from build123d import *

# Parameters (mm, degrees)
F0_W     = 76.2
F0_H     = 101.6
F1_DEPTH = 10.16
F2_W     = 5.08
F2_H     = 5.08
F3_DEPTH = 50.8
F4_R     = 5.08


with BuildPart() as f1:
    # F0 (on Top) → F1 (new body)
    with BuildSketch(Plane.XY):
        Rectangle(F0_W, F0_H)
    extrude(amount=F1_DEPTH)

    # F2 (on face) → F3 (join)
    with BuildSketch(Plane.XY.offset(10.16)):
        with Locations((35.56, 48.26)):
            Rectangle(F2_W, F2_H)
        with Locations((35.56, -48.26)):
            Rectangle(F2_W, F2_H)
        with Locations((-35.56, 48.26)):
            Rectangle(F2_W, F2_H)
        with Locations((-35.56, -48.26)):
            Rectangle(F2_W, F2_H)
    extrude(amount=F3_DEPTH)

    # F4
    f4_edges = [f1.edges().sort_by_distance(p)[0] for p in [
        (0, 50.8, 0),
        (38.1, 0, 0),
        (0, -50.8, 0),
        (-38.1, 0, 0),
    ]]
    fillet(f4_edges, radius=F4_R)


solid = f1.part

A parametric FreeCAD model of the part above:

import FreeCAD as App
import Part
import Sketcher
Q = App.Units.Quantity


def edges_at(feature, points):
    """Names of the edges that pass closest to the given points."""
    edges = feature.Shape.Edges
    near = lambda p: min(range(len(edges)), key=lambda i: edges[i].distToShape(Part.Vertex(*p))[0])
    return sorted({f"Edge{near(p) + 1}" for p in points})


def add_polygon(sketch, points):
    """Adds a closed chain of lines whose ends are joined by coincident constraints."""
    first, n = sketch.GeometryCount, len(points)
    for a, b in zip(points, points[1:] + points[:1]):
        sketch.addGeometry(Part.LineSegment(App.Vector(*a, 0), App.Vector(*b, 0)), False)
    for i in range(n):
        sketch.addConstraint(Sketcher.Constraint("Coincident", first + i, 2, first + (i + 1) % n, 1))

doc = App.newDocument("Part")
body = doc.addObject("PartDesign::Body", "Body")

# Sketch on XY plane
sketch1 = body.newObject("Sketcher::SketchObject", "Sketch")
sketch1.AttachmentSupport = (doc.getObject("XY_Plane"), [""])
sketch1.MapMode = "FlatFace"
add_polygon(sketch1, [(-38, 51), (-38, -51), (38, -51), (38, 51)])  # lines 0-3
sketch1.addConstraint([
    Sketcher.Constraint("Vertical", 0),
    Sketcher.Constraint("Horizontal", 1),
    Sketcher.Constraint("Vertical", 2),
    Sketcher.Constraint("Horizontal", 3),
    Sketcher.Constraint("Symmetric", 0, 2, 2, 2, -1, 1),
    Sketcher.Constraint("DistanceX", 1, 1, 1, 2, Q("3 in")),
    Sketcher.Constraint("DistanceY", 0, 2, 0, 1, Q("4 in")),
])
pad1 = body.newObject("PartDesign::Pad", "Pad")
pad1.Profile = sketch1
pad1.Length = Q("0.4 in")

# Sketch on XY plane
sketch2 = body.newObject("Sketcher::SketchObject", "Sketch001")
sketch2.AttachmentSupport = (doc.getObject("XY_Plane"), [""])
sketch2.MapMode = "FlatFace"
sketch2.AttachmentOffset = App.Placement(App.Vector(0, 0, 0.4 * 25.4), App.Rotation())
add_polygon(sketch2, [(33, 51), (33, 46), (38, 46), (38, 51)])  # lines 0-3
add_polygon(sketch2, [(33, -46), (33, -51), (38, -51), (38, -46)])  # lines 4-7
add_polygon(sketch2, [(-38, 51), (-38, 46), (-33, 46), (-33, 51)])  # lines 8-11
add_polygon(sketch2, [(-38, -46), (-38, -51), (-33, -51), (-33, -46)])  # lines 12-15
sketch2.addConstraint([
    Sketcher.Constraint("Vertical", 0),
    Sketcher.Constraint("Horizontal", 1),
    Sketcher.Constraint("Vertical", 2),
    Sketcher.Constraint("Horizontal", 3),
    Sketcher.Constraint("Vertical", 4),
    Sketcher.Constraint("Horizontal", 5),
    Sketcher.Constraint("Vertical", 6),
    Sketcher.Constraint("Horizontal", 7),
    Sketcher.Constraint("Vertical", 8),
    Sketcher.Constraint("Horizontal", 9),
    Sketcher.Constraint("Vertical", 10),
    Sketcher.Constraint("Horizontal", 11),
    Sketcher.Constraint("Vertical", 12),
    Sketcher.Constraint("Horizontal", 13),
    Sketcher.Constraint("Vertical", 14),
    Sketcher.Constraint("Horizontal", 15),
    Sketcher.Constraint("Symmetric", 6, 2, 8, 2, -1, 1),
    Sketcher.Constraint("Symmetric", 4, 2, 10, 2, -1, 1),
    Sketcher.Constraint("Symmetric", 2, 2, 12, 2, -1, 1),
    Sketcher.Constraint("Symmetric", 0, 2, 14, 2, -1, 1),
    Sketcher.Constraint("Symmetric", 1, 2, 8, 2, -2),
    Sketcher.Constraint("Symmetric", 3, 2, 10, 2, -2),
    Sketcher.Constraint("Equal", 15, 0),
    Sketcher.Constraint("DistanceX", 1, 1, 1, 2, Q("0.2 in")),
    Sketcher.Constraint("DistanceY", -1, 1, 2, 2, Q("2 in")),
    Sketcher.Constraint("DistanceX", 8, 2, 1, 2, Q("3 in")),
])
pad2 = body.newObject("PartDesign::Pad", "Pad001")
pad2.Profile = sketch2
pad2.Length = Q("2 in")
doc.recompute()

fillet = body.newObject("PartDesign::Fillet", "Fillet")
fillet.Base = (pad2, edges_at(pad2, [
    (0, 50.8, 0),
    (38.1, 0, 0),
    (0, -50.8, 0),
    (-38.1, 0, 0),
]))
fillet.Radius = Q("0.2 in")

doc.recompute()
